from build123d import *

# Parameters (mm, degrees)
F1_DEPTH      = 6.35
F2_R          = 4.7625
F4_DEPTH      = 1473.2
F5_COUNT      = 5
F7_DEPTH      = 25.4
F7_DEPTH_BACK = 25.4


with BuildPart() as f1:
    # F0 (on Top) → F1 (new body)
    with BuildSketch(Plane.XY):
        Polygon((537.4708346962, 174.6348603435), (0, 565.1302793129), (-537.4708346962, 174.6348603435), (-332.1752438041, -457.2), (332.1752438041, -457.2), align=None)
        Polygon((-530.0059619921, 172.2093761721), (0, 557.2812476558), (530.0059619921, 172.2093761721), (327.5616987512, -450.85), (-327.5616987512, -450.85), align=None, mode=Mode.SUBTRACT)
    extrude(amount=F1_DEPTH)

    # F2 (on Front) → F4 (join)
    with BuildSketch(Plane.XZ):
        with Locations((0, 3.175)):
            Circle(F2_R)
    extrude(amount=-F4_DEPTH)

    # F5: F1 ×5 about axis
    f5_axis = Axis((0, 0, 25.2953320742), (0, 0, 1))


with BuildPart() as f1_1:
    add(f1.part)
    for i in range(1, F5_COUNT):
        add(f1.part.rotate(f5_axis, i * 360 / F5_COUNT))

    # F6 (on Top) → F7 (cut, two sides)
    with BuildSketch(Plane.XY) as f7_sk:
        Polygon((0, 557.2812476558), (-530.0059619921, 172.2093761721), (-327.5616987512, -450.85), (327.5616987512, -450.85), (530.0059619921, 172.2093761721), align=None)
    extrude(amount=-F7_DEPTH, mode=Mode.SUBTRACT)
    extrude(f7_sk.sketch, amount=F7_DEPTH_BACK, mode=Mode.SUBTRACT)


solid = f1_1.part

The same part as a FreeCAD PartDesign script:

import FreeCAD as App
import Part
import Sketcher

V = App.Vector
Q = App.Units.Quantity

doc = App.newDocument("Part")
body = doc.addObject("PartDesign::Body", "Body")

sketch1 = doc.addObject("Sketcher::SketchObject", "Sketch")
body.addObject(sketch1)
sketch1.AttachmentSupport = (doc.XY_Plane, [""])
sketch1.MapMode = "FlatFace"
sketch1.addGeometry([
    Part.LineSegment(V(537.470835, 174.63486, 0), V(0, 565.130279, 0)),
    Part.LineSegment(V(0, 565.130279, 0), V(-537.470835, 174.63486, 0)),
    Part.LineSegment(V(-537.470835, 174.63486, 0), V(-332.175244, -457.2, 0)),
    Part.LineSegment(V(-332.175244, -457.2, 0), V(332.175244, -457.2, 0)),
    Part.LineSegment(V(332.175244, -457.2, 0), V(537.470835, 174.63486, 0)),
    Part.LineSegment(V(-327.561699, -450.85, 0), V(-530.005962, 172.209376, 0)),
    Part.LineSegment(V(-530.005962, 172.209376, 0), V(0, 557.281248, 0)),
    Part.LineSegment(V(0, 557.281248, 0), V(530.005962, 172.209376, 0)),
    Part.LineSegment(V(530.005962, 172.209376, 0), V(327.561699, -450.85, 0)),
    Part.LineSegment(V(327.561699, -450.85, 0), V(-327.561699, -450.85, 0)),
], False)
sketch1.addConstraint([
    Sketcher.Constraint("Coincident", 0, 2, 1, 1),
    Sketcher.Constraint("Coincident", 1, 2, 2, 1),
    Sketcher.Constraint("Coincident", 2, 2, 3, 1),
    Sketcher.Constraint("Coincident", 3, 2, 4, 1),
    Sketcher.Constraint("Coincident", 4, 2, 0, 1),
    Sketcher.Constraint("Coincident", 5, 2, 6, 1),
    Sketcher.Constraint("Coincident", 6, 2, 7, 1),
    Sketcher.Constraint("Coincident", 7, 2, 8, 1),
    Sketcher.Constraint("Coincident", 8, 2, 9, 1),
    Sketcher.Constraint("Coincident", 9, 2, 5, 1),
    Sketcher.Constraint("Horizontal", 3),
    Sketcher.Constraint("Horizontal", 9),
    Sketcher.Constraint("Symmetric", 1, 2, 4, 2, -2),
    Sketcher.Constraint("Symmetric", 5, 2, 7, 2, -2),
    Sketcher.Constraint("PointOnObject", 0, 2, -2),
    Sketcher.Constraint("PointOnObject", 6, 2, -2),
    Sketcher.Constraint("Parallel", 2, 5),
    Sketcher.Constraint("Parallel", 1, 6),
    Sketcher.Constraint("Parallel", 4, 8),
    Sketcher.Constraint("Equal", 1, 2),
    Sketcher.Constraint("Equal", 2, 4),
    Sketcher.Constraint("Equal", 5, 6),
    Sketcher.Constraint("DistanceY", 2, 2, -1, 1, Q("18 in")),
    Sketcher.Constraint("Angle", 0, Q("144 deg")),
    Sketcher.Constraint("Angle", 2, Q("-72 deg")),
    Sketcher.Constraint("DistanceY", 8, 2, -1, 1, Q("17.75 in")),
    Sketcher.Constraint("DistanceX", -1, 1, 8, 2, Q("327.561699 mm")),
    Sketcher.Constraint("DistanceX", 3, 1, 3, 2, Q("664.350488 mm")),
])
pad1 = doc.addObject("PartDesign::Pad", "Pad")
body.addObject(pad1)
pad1.Profile = sketch1
pad1.Length = Q("0.25 in")

sketch2 = doc.addObject("Sketcher::SketchObject", "Sketch001")
body.addObject(sketch2)
sketch2.AttachmentSupport = (doc.XZ_Plane, [""])
sketch2.MapMode = "FlatFace"
sketch2.addGeometry(Part.Circle(V(0, 3.175, 0), V(0, 0, 1), 4.7625), False)
sketch2.addConstraint([
    Sketcher.Constraint("PointOnObject", 0, 3, -2),
    Sketcher.Constraint("Diameter", 0, Q("0.375 in")),
    Sketcher.Constraint("DistanceY", -1, 1, 0, 3, Q("0.125 in")),
])
pad2 = doc.addObject("PartDesign::Pad", "Pad001")
body.addObject(pad2)
pad2.Profile = sketch2
pad2.Length = Q("58 in")
pad2.Reversed = True
body2 = doc.addObject("PartDesign::Body", "Body001")
doc.recompute()

body2.BaseFeature = body
doc.recompute()

body3 = doc.addObject("PartDesign::Body", "Body002")
body3.BaseFeature = body
body3.Placement = App.Placement(V(0, 0, 0), App.Rotation(V(0, 0, 1), 72))
boolean = doc.addObject("PartDesign::Boolean", "Boolean")
body2.addObject(boolean)
boolean.Type = "Fuse"
boolean.addObjects([body3])
doc.recompute()

body4 = doc.addObject("PartDesign::Body", "Body003")
body4.BaseFeature = body
body4.Placement = App.Placement(V(0, 0, 0), App.Rotation(V(0, 0, 1), 144))
boolean2 = doc.addObject("PartDesign::Boolean", "Boolean001")
body2.addObject(boolean2)
boolean2.Type = "Fuse"
boolean2.addObjects([body4])
doc.recompute()

body5 = doc.addObject("PartDesign::Body", "Body004")
body5.BaseFeature = body
body5.Placement = App.Placement(V(0, 0, 0), App.Rotation(V(0, 0, 1), 216))
boolean3 = doc.addObject("PartDesign::Boolean", "Boolean002")
body2.addObject(boolean3)
boolean3.Type = "Fuse"
boolean3.addObjects([body5])
doc.recompute()

body.Placement = App.Placement(V(0, 0, 0), App.Rotation(V(0, 0, 1), 288))
boolean4 = doc.addObject("PartDesign::Boolean", "Boolean003")
body2.addObject(boolean4)
boolean4.Type = "Fuse"
boolean4.addObjects([body])

sketch3 = doc.addObject("Sketcher::SketchObject", "Sketch002")
body2.addObject(sketch3)
sketch3.AttachmentSupport = (doc.getObject("XY_Plane001"), [""])
sketch3.MapMode = "FlatFace"
sketch3.addGeometry([
    Part.LineSegment(V(0, 557.281248, 0), V(-530.005962, 172.209376, 0)),
    Part.LineSegment(V(-530.005962, 172.209376, 0), V(-327.561699, -450.85, 0)),
    Part.LineSegment(V(-327.561699, -450.85, 0), V(327.561699, -450.85, 0)),
    Part.LineSegment(V(327.561699, -450.85, 0), V(530.005962, 172.209376, 0)),
    Part.LineSegment(V(530.005962, 172.209376, 0), V(0, 557.281248, 0)),
], False)
sketch3.addConstraint([
    Sketcher.Constraint("Coincident", 0, 2, 1, 1),
    Sketcher.Constraint("Coincident", 1, 2, 2, 1),
    Sketcher.Constraint("Coincident", 2, 2, 3, 1),
    Sketcher.Constraint("Coincident", 3, 2, 4, 1),
    Sketcher.Constraint("Coincident", 4, 2, 0, 1),
    Sketcher.Constraint("Horizontal", 2),
    Sketcher.Constraint("Symmetric", 0, 2, 3, 2, -2),
    Sketcher.Constraint("PointOnObject", 4, 2, -2),
    Sketcher.Constraint("Equal", 0, 1),
    Sketcher.Constraint("Equal", 1, 3),
    Sketcher.Constraint("Angle", 0, Q("-144 deg")),
    Sketcher.Constraint("Angle", 1, Q("-72 deg")),
    Sketcher.Constraint("DistanceY", 1, 2, -1, 1, Q("17.75 in")),
    Sketcher.Constraint("DistanceX", 1, 2, -1, 1, Q("327.561699 mm")),
])
pocket1 = doc.addObject("PartDesign::Pocket", "Pocket")
body2.addObject(pocket1)
pocket1.Profile = sketch3
pocket1.Type = "ThroughAll"
pocket1.Midplane = True

doc.recompute()
